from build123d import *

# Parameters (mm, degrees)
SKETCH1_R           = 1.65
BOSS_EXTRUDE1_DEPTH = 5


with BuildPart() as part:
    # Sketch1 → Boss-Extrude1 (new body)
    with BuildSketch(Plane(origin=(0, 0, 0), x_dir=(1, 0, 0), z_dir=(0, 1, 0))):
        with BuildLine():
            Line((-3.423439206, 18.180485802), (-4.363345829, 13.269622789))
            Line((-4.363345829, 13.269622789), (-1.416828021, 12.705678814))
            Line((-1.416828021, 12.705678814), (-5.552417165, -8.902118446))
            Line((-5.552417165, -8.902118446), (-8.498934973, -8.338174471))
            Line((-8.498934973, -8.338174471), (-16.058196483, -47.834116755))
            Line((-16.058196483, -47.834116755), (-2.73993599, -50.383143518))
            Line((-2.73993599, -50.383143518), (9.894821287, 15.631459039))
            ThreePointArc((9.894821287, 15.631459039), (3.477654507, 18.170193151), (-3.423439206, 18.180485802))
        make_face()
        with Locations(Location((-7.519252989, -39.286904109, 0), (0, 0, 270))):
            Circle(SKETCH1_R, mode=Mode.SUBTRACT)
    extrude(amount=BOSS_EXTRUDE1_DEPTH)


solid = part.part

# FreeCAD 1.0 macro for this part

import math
import FreeCAD as App
import Part
import Sketcher

V = App.Vector

doc = App.newDocument("Part")
body = doc.addObject("PartDesign::Body", "Body")

# Sketch on XZ plane
sketch1 = body.newObject("Sketcher::SketchObject", "Sketch")
sketch1.AttachmentSupport = (doc.getObject("XZ_Plane"), [""])
sketch1.MapMode = "FlatFace"
sketch1.addGeometry([
    Part.LineSegment(V(-3.4, -18.2, 0), V(-4.4, -13.3, 0)),  # 0
    Part.LineSegment(V(-4.4, -13.3, 0), V(-1.4, -12.7, 0)),  # 1
    Part.LineSegment(V(-1.4, -12.7, 0), V(-5.6, 8.9, 0)),  # 2
    Part.LineSegment(V(-5.6, 8.9, 0), V(-8.5, 8.3, 0)),  # 3
    Part.LineSegment(V(-8.5, 8.3, 0), V(-16.1, 47.8, 0)),  # 4
    Part.LineSegment(V(-16.1, 47.8, 0), V(-2.7, 50.4, 0)),  # 5
    Part.LineSegment(V(-2.7, 50.4, 0), V(9.9, -15.6, 0)),  # 6
    Part.ArcOfCircle(Part.Circle(V(0, 0, 0), V(0, 0, 1), 18.5), math.radians(-101), math.radians(-58)),  # 7
    Part.Circle(V(-7.5, 39.3, 0), V(0, 0, 1), 1.6),  # 8
], False)
sketch1.addConstraint([
    Sketcher.Constraint("Coincident", 0, 2, 1, 1),
    Sketcher.Constraint("Coincident", 1, 2, 2, 1),
    Sketcher.Constraint("Coincident", 2, 2, 3, 1),
    Sketcher.Constraint("Coincident", 3, 2, 4, 1),
    Sketcher.Constraint("Coincident", 4, 2, 5, 1),
    Sketcher.Constraint("Coincident", 5, 2, 6, 1),
    Sketcher.Constraint("Coincident", 6, 2, 7, 2),
    Sketcher.Constraint("Coincident", 7, 1, 0, 1),
    Sketcher.Constraint("Coincident", 7, 3, -1, 1),
    Sketcher.Constraint("Perpendicular", 0, 1),
    Sketcher.Constraint("Perpendicular", 1, 2),
    Sketcher.Constraint("Perpendicular", 2, 3),
    Sketcher.Constraint("Perpendicular", 3, 4),
    Sketcher.Constraint("Perpendicular", 4, 5),
    Sketcher.Constraint("Perpendicular", 5, 6),
    Sketcher.Constraint("Equal", 1, 3),
    Sketcher.Constraint("Diameter", 8, 3.3),
    Sketcher.Constraint("Radius", 7, 18.5),
    Sketcher.Constraint("Distance", 0, 5.0),
    Sketcher.Constraint("Distance", 1, 3.0),
    Sketcher.Constraint("Distance", 2, 22.0),
    Sketcher.Constraint("Distance", 5, 13.56),
    Sketcher.Constraint("DistanceY", 2, 2, 4, 2, 38.931998),
    Sketcher.Constraint("DistanceX", 3, 2, 5, 2, 5.758999),
    Sketcher.Constraint("DistanceX", 1, 2, -1, 1, 1.416828),
    Sketcher.Constraint("DistanceX", 3, 2, 8, 3, 0.979682),
    Sketcher.Constraint("DistanceY", 3, 2, 8, 3, 30.94873),
])
pad1 = body.newObject("PartDesign::Pad", "Pad")
pad1.Profile = sketch1
pad1.Length = 5
pad1.Reversed = True

doc.recompute()
